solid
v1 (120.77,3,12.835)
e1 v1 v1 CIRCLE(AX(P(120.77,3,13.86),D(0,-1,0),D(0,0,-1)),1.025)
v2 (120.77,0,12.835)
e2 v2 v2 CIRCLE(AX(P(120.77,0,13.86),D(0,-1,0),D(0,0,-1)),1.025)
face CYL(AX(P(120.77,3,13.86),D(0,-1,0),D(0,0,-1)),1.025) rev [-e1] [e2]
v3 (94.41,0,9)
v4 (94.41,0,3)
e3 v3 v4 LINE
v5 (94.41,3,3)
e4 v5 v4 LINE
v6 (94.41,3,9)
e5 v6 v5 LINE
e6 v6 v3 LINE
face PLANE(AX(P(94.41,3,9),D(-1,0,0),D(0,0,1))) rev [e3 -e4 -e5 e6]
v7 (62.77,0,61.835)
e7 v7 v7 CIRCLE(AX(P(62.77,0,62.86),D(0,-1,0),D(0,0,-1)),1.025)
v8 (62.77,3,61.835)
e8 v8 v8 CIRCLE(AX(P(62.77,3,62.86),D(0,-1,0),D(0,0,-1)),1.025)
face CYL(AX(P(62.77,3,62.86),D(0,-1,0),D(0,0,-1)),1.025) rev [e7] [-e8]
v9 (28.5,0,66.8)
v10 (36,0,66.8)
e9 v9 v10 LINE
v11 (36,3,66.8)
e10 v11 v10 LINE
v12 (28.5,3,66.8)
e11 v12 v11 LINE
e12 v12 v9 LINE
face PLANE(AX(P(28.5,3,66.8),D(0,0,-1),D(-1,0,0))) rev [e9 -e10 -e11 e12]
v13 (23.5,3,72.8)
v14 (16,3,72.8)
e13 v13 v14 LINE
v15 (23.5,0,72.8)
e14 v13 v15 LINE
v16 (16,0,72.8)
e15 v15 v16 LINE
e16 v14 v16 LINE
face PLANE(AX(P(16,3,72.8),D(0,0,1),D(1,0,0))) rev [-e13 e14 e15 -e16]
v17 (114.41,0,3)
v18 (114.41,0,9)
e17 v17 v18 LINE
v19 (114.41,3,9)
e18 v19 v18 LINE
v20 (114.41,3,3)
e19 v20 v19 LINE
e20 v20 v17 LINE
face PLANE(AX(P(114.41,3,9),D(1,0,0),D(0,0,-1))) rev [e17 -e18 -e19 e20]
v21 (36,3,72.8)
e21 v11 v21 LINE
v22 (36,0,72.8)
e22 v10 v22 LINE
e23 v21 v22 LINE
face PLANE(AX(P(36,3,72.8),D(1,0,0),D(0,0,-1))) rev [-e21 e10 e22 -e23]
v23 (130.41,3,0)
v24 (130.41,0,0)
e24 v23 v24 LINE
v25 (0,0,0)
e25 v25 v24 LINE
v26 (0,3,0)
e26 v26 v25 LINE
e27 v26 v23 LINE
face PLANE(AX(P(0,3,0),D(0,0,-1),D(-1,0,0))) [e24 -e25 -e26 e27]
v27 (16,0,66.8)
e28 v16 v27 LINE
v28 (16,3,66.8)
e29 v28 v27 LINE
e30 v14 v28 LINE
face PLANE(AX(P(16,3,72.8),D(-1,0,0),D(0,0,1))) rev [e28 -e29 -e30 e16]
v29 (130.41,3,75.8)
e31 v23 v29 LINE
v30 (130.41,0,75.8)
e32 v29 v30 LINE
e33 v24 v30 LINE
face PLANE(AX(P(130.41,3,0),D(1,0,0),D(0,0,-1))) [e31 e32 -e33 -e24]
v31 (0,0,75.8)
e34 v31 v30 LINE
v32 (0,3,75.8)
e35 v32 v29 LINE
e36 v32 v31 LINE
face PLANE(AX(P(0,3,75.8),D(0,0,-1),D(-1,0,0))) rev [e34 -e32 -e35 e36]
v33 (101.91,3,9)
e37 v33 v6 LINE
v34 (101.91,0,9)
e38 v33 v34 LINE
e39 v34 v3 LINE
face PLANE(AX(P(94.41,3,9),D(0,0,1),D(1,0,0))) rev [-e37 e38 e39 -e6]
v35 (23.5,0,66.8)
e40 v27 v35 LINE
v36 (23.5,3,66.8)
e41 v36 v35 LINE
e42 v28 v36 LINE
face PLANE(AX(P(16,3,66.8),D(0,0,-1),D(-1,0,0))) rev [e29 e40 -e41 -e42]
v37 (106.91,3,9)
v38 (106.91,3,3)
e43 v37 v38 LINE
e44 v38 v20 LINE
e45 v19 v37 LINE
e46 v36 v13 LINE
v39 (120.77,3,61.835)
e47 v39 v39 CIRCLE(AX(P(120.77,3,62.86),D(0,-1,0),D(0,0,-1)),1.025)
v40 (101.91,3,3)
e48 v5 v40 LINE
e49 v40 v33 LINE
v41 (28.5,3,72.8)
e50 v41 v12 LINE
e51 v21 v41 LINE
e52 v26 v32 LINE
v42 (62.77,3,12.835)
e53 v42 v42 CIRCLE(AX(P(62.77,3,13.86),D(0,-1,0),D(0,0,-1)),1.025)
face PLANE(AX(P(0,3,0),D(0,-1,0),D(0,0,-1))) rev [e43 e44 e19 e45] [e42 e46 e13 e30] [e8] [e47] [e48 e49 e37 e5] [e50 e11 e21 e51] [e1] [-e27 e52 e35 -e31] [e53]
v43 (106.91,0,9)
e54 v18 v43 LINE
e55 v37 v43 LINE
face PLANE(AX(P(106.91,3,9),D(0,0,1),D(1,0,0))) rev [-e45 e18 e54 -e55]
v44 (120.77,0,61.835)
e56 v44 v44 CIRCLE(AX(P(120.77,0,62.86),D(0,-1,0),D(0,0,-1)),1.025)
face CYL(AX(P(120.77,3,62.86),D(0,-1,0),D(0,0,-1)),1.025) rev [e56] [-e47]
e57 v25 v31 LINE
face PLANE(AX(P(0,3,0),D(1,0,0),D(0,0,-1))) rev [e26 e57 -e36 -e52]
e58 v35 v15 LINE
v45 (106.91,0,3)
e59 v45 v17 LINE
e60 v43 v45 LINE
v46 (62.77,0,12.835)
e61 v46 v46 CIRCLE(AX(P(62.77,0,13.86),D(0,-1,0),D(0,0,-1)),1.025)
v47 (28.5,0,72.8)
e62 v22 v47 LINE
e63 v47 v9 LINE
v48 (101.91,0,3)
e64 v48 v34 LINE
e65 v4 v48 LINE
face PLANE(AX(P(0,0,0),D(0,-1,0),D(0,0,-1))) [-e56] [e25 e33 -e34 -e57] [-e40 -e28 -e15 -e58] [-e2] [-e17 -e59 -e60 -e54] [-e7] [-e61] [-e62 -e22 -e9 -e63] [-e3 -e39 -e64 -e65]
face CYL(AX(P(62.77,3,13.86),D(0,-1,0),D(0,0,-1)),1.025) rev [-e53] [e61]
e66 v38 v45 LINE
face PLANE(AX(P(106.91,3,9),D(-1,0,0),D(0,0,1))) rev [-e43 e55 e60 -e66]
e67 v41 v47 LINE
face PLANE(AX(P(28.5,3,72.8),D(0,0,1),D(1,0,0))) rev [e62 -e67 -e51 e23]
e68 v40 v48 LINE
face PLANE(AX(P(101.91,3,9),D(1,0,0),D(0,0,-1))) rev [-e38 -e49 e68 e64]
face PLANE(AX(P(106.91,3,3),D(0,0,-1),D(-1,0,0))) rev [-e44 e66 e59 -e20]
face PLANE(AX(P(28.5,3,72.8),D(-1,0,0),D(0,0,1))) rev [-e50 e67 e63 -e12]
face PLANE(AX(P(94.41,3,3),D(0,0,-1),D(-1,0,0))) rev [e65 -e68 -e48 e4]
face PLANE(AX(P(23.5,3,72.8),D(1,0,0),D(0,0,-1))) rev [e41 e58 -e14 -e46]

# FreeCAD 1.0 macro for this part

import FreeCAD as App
import Part
import Sketcher


def add_polygon(sketch, points):
    """Adds a closed chain of lines whose ends are joined by coincident constraints."""
    first, n = sketch.GeometryCount, len(points)
    for a, b in zip(points, points[1:] + points[:1]):
        sketch.addGeometry(Part.LineSegment(App.Vector(*a, 0), App.Vector(*b, 0)), False)
    for i in range(n):
        sketch.addConstraint(Sketcher.Constraint("Coincident", first + i, 2, first + (i + 1) % n, 1))

doc = App.newDocument("Part")
body = doc.addObject("PartDesign::Body", "Body")

# Sketch on XZ plane
sketch1 = body.newObject("Sketcher::SketchObject", "Sketch")
sketch1.AttachmentSupport = (doc.getObject("XZ_Plane"), [""])
sketch1.MapMode = "FlatFace"
add_polygon(sketch1, [(0, 0), (0, 76), (130, 76), (130, 0)])  # lines 0-3
sketch1.addConstraint([
    Sketcher.Constraint("Vertical", 0),
    Sketcher.Constraint("Horizontal", 1),
    Sketcher.Constraint("Vertical", 2),
    Sketcher.Constraint("Horizontal", 3),
    Sketcher.Constraint("Coincident", 3, 2, -1, 1),
    Sketcher.Constraint("DistanceY", 0, 1, 0, 2, 75.8),
    Sketcher.Constraint("DistanceX", 1, 1, 1, 2, 130.41),
])
pad1 = body.newObject("PartDesign::Pad", "Pad")
pad1.Profile = sketch1
pad1.Length = 3
pad1.Reversed = True

# Sketch on XZ plane
sketch2 = body.newObject("Sketcher::SketchObject", "Sketch001")
sketch2.AttachmentSupport = (doc.getObject("XZ_Plane"), [""])
sketch2.MapMode = "FlatFace"
add_polygon(sketch2, [(28, 73), (28, 67), (36, 67), (36, 73)])  # lines 0-3
add_polygon(sketch2, [(16, 73), (16, 67), (24, 67), (24, 73)])  # lines 4-7
sketch2.addConstraint([
    Sketcher.Constraint("Vertical", 0),
    Sketcher.Constraint("Horizontal", 1),
    Sketcher.Constraint("Vertical", 2),
    Sketcher.Constraint("Horizontal", 3),
    Sketcher.Constraint("Vertical", 4),
    Sketcher.Constraint("Horizontal", 5),
    Sketcher.Constraint("Vertical", 6),
    Sketcher.Constraint("Horizontal", 7),
    Sketcher.Constraint("Horizontal", 1, 2, 4, 2),
    Sketcher.Constraint("Horizontal", 3, 2, 6, 2),
    Sketcher.Constraint("Equal", 3, 5),
    Sketcher.Constraint("DistanceY", 0, 2, 0, 1, 6.0),
    Sketcher.Constraint("DistanceX", 1, 1, 1, 2, 7.5),
    Sketcher.Constraint("DistanceX", -1, 1, 1, 2, 36.0),
    Sketcher.Constraint("DistanceX", -1, 1, 4, 2, 16.0),
    Sketcher.Constraint("DistanceY", -1, 1, 0, 2, 66.8),
])
pocket1 = body.newObject("PartDesign::Pocket", "Pocket")
pocket1.Profile = sketch2
pocket1.Type = "ThroughAll"

# Sketch on XZ plane
sketch3 = body.newObject("Sketcher::SketchObject", "Sketch002")
sketch3.AttachmentSupport = (doc.getObject("XZ_Plane"), [""])
sketch3.MapMode = "FlatFace"
add_polygon(sketch3, [(94, 9), (94, 3), (102, 3), (102, 9)])  # lines 0-3
add_polygon(sketch3, [(107, 9), (107, 3), (114, 3), (114, 9)])  # lines 4-7
sketch3.addConstraint([
    Sketcher.Constraint("Vertical", 0),
    Sketcher.Constraint("Horizontal", 1),
    Sketcher.Constraint("Vertical", 2),
    Sketcher.Constraint("Horizontal", 3),
    Sketcher.Constraint("Vertical", 4),
    Sketcher.Constraint("Horizontal", 5),
    Sketcher.Constraint("Vertical", 6),
    Sketcher.Constraint("Horizontal", 7),
    Sketcher.Constraint("Horizontal", 1, 2, 4, 2),
    Sketcher.Constraint("Horizontal", 3, 2, 6, 2),
    Sketcher.Constraint("Equal", 3, 5),
    Sketcher.Constraint("DistanceY", 0, 2, 0, 1, 6.0),
    Sketcher.Constraint("DistanceX", 1, 1, 1, 2, 7.5),
    Sketcher.Constraint("DistanceY", -1, 1, 0, 2, 3.0),
    Sketcher.Constraint("DistanceX", 1, 2, 4, 2, 5.0),
    Sketcher.Constraint("DistanceX", -1, 1, 0, 2, 94.41),
])
pocket2 = body.newObject("PartDesign::Pocket", "Pocket001")
pocket2.Profile = sketch3
pocket2.Type = "ThroughAll"

# Sketch on XZ plane
sketch4 = body.newObject("Sketcher::SketchObject", "Sketch003")
sketch4.AttachmentSupport = (doc.getObject("XZ_Plane"), [""])
sketch4.MapMode = "FlatFace"
sketch4.addGeometry([
    Part.Circle(App.Vector(120.8, 13.9, 0), App.Vector(0, 0, 1), 1),
    Part.Circle(App.Vector(120.8, 62.9, 0), App.Vector(0, 0, 1), 1),
], False)
sketch4.addConstraint([
    Sketcher.Constraint("Equal", 0, 1),
    Sketcher.Constraint("Vertical", 0, 3, 1, 3),
    Sketcher.Constraint("Diameter", 0, 2.05),
    Sketcher.Constraint("DistanceY", 0, 3, 1, 3, 49.0),
    Sketcher.Constraint("DistanceX", -1, 1, 0, 3, 120.77),
    Sketcher.Constraint("DistanceY", -1, 1, 0, 3, 13.86),
])
pocket3 = body.newObject("PartDesign::Pocket", "Pocket002")
pocket3.Profile = sketch4
pocket3.Type = "ThroughAll"

# Sketch on XZ plane
sketch5 = body.newObject("Sketcher::SketchObject", "Sketch004")
sketch5.AttachmentSupport = (doc.getObject("XZ_Plane"), [""])
sketch5.MapMode = "FlatFace"
sketch5.addGeometry([
    Part.Circle(App.Vector(62.8, 13.9, 0), App.Vector(0, 0, 1), 1),
    Part.Circle(App.Vector(62.8, 62.9, 0), App.Vector(0, 0, 1), 1),
], False)
sketch5.addConstraint([
    Sketcher.Constraint("Equal", 0, 1),
    Sketcher.Constraint("Vertical", 0, 3, 1, 3),
    Sketcher.Constraint("Diameter", 0, 2.05),
    Sketcher.Constraint("DistanceY", 0, 3, 1, 3, 49.0),
    Sketcher.Constraint("DistanceX", -1, 1, 0, 3, 62.77),
    Sketcher.Constraint("DistanceY", -1, 1, 0, 3, 13.86),
])
pocket4 = body.newObject("PartDesign::Pocket", "Pocket003")
pocket4.Profile = sketch5
pocket4.Type = "ThroughAll"

doc.recompute()
